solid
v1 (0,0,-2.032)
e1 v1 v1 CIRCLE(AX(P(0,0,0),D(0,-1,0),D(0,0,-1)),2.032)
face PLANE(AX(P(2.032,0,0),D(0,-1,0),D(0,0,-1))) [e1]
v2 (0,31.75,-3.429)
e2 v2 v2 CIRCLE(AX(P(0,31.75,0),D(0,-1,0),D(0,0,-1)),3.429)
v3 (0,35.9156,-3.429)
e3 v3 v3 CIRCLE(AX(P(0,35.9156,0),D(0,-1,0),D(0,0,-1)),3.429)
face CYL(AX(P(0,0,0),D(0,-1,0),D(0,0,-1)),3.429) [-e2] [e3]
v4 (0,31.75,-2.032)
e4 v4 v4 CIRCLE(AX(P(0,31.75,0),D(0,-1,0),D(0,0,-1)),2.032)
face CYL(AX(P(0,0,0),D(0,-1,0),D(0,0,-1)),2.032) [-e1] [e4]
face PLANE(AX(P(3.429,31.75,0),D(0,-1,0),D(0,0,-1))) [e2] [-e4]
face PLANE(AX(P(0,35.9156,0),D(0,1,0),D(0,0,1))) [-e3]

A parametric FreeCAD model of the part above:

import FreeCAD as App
import Part
import Sketcher

V = App.Vector
Q = App.Units.Quantity


def add_polygon(sketch, points):
    """Adds a closed chain of lines whose ends are joined by coincident constraints."""
    first, n = sketch.GeometryCount, len(points)
    for a, b in zip(points, points[1:] + points[:1]):
        sketch.addGeometry(Part.LineSegment(App.Vector(*a, 0), App.Vector(*b, 0)), False)
    for i in range(n):
        sketch.addConstraint(Sketcher.Constraint("Coincident", first + i, 2, first + (i + 1) % n, 1))

doc = App.newDocument("Part")
body = doc.addObject("PartDesign::Body", "Body")

# Sketch on XY plane
sketch1 = body.newObject("Sketcher::SketchObject", "Sketch")
sketch1.AttachmentSupport = (doc.getObject("XY_Plane"), [""])
sketch1.MapMode = "FlatFace"
add_polygon(sketch1, [(0, 35.9), (0, 0), (2, 0), (2, 31.8), (3.4, 31.8), (3.4, 35.9)])  # lines 0-5
sketch1.addConstraint(Sketcher.Constraint("Vertical", 0))
sketch1.addConstraint(Sketcher.Constraint("Horizontal", 1))
sketch1.addConstraint(Sketcher.Constraint("Vertical", 2))
sketch1.addConstraint(Sketcher.Constraint("Horizontal", 3))
sketch1.addConstraint(Sketcher.Constraint("Vertical", 4))
sketch1.addConstraint(Sketcher.Constraint("Horizontal", 5))
sketch1.addConstraint(Sketcher.Constraint("Coincident", 0, 2, -1, 1))
sketch1.addConstraint(Sketcher.Constraint("DistanceX", 1, 1, 1, 2, Q("0.08 in")))
sketch1.addConstraint(Sketcher.Constraint("DistanceY", 2, 1, 2, 2, Q("1.25 in")))
sketch1.addConstraint(Sketcher.Constraint("DistanceX", 3, 1, 3, 2, Q("0.055 in")))
sketch1.addConstraint(Sketcher.Constraint("DistanceY", 0, 2, 0, 1, Q("1.414 in")))
revolution = body.newObject("PartDesign::Revolution", "Revolution")
revolution.Profile = sketch1
revolution.ReferenceAxis = (sketch1, ["V_Axis"])
revolution.Angle = 360

doc.recompute()
